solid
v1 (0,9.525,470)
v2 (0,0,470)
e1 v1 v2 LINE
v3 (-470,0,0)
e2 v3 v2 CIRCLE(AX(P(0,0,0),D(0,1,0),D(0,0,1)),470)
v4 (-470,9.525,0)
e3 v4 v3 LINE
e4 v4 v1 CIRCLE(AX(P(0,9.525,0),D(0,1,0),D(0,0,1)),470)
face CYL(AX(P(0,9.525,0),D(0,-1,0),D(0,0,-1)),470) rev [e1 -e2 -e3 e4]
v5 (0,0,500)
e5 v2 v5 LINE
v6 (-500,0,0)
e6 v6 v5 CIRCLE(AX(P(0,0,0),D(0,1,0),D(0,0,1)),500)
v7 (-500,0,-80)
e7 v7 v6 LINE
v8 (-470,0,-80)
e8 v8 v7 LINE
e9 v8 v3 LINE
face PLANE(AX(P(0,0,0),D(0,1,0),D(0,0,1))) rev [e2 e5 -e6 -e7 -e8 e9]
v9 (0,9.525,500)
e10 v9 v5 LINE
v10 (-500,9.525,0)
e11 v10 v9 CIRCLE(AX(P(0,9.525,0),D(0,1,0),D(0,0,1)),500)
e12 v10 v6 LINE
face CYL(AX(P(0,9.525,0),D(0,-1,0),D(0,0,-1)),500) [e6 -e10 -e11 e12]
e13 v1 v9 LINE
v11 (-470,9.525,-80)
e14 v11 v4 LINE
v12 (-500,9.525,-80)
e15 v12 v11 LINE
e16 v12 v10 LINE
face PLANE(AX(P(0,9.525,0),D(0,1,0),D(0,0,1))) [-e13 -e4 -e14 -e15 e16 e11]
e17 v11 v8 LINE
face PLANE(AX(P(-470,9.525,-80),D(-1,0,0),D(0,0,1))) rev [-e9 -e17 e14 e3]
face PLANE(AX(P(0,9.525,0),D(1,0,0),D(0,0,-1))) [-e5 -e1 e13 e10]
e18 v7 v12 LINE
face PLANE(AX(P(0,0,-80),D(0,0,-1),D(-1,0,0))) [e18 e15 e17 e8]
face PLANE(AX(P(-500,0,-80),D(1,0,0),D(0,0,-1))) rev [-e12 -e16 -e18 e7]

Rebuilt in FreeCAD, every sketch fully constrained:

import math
import FreeCAD as App
import Part
import Sketcher


def add_polygon(sketch, points):
    """Adds a closed chain of lines whose ends are joined by coincident constraints."""
    first, n = sketch.GeometryCount, len(points)
    for a, b in zip(points, points[1:] + points[:1]):
        sketch.addGeometry(Part.LineSegment(App.Vector(*a, 0), App.Vector(*b, 0)), False)
    for i in range(n):
        sketch.addConstraint(Sketcher.Constraint("Coincident", first + i, 2, first + (i + 1) % n, 1))

doc = App.newDocument("Part")
params = doc.addObject("Spreadsheet::Sheet", "Params")
for row, (alias, value) in enumerate([
    ("sketch1_radius", "470 mm"),
    ("sketch1_radius2", "500 mm"),
    ("pad1_length", "9.525 mm"),
    ("sketch2_width", "30 mm"),
    ("pad2_length", "80 mm"),
], start=1):
    params.set(f"A{row}", alias)
    params.set(f"B{row}", "=" + value)
    params.setAlias(f"B{row}", alias)

body = doc.addObject("PartDesign::Body", "Body")

# Sketch on XZ plane
sketch1 = doc.addObject("Sketcher::SketchObject", "Sketch")
body.addObject(sketch1)
sketch1.AttachmentSupport = (doc.XZ_Plane, [""])
sketch1.MapMode = "FlatFace"
sketch1.addGeometry([
    Part.ArcOfCircle(Part.Circle(App.Vector(0, 0, 0), App.Vector(0, 0, 1), 470), math.radians(90), math.radians(180)),
    Part.LineSegment(App.Vector(-470, 0, 0), App.Vector(-500, 0, 0)),
    Part.ArcOfCircle(Part.Circle(App.Vector(0, 0, 0), App.Vector(0, 0, 1), 500), math.radians(90), math.radians(180)),
    Part.LineSegment(App.Vector(0, 500, 0), App.Vector(0, 470, 0)),
], False)
sketch1.addConstraint([
    Sketcher.Constraint("Coincident", 0, 2, 1, 1),
    Sketcher.Constraint("Coincident", 1, 2, 2, 2),
    Sketcher.Constraint("Coincident", 2, 1, 3, 1),
    Sketcher.Constraint("Coincident", 3, 2, 0, 1),
    Sketcher.Constraint("Horizontal", 1),
    Sketcher.Constraint("Vertical", 3),
    Sketcher.Constraint("Coincident", 0, 3, -1, 1),
    Sketcher.Constraint("Coincident", 2, 3, -1, 1),
    Sketcher.Constraint("PointOnObject", 1, 2, -1),
    Sketcher.Constraint("PointOnObject", 3, 2, -2),
    Sketcher.Constraint("Radius", 0, 470.0),
    Sketcher.Constraint("Radius", 2, 500.0),
])
sketch1.setExpression("Constraints[10]", "Params.sketch1_radius")
sketch1.setExpression("Constraints[11]", "Params.sketch1_radius2")
pad1 = doc.addObject("PartDesign::Pad", "Pad")
body.addObject(pad1)
pad1.Profile = sketch1
pad1.setExpression("Length", "Params.pad1_length")
pad1.Reversed = True

# Sketch on XY plane
sketch2 = doc.addObject("Sketcher::SketchObject", "Sketch001")
body.addObject(sketch2)
sketch2.AttachmentSupport = (doc.XY_Plane, [""])
sketch2.MapMode = "FlatFace"
add_polygon(sketch2, [(-470, 9.525), (-470, 0), (-500, 0), (-500, 9.525)])  # lines 0-3
sketch2.addConstraint([
    Sketcher.Constraint("Vertical", 0),
    Sketcher.Constraint("Horizontal", 1),
    Sketcher.Constraint("Vertical", 2),
    Sketcher.Constraint("Horizontal", 3),
    Sketcher.Constraint("PointOnObject", 0, 2, -1),
    Sketcher.Constraint("DistanceX", 1, 2, 1, 1, 30.0),
    Sketcher.Constraint("DistanceX", 0, 2, -1, 1, 470.0),
    Sketcher.Constraint("DistanceY", 0, 2, 0, 1, 9.525),
])
sketch2.setExpression("Constraints[9]", "Params.sketch2_width")
pad2 = doc.addObject("PartDesign::Pad", "Pad001")
body.addObject(pad2)
pad2.Profile = sketch2
pad2.setExpression("Length", "Params.pad2_length")
pad2.Reversed = True

doc.recompute()
